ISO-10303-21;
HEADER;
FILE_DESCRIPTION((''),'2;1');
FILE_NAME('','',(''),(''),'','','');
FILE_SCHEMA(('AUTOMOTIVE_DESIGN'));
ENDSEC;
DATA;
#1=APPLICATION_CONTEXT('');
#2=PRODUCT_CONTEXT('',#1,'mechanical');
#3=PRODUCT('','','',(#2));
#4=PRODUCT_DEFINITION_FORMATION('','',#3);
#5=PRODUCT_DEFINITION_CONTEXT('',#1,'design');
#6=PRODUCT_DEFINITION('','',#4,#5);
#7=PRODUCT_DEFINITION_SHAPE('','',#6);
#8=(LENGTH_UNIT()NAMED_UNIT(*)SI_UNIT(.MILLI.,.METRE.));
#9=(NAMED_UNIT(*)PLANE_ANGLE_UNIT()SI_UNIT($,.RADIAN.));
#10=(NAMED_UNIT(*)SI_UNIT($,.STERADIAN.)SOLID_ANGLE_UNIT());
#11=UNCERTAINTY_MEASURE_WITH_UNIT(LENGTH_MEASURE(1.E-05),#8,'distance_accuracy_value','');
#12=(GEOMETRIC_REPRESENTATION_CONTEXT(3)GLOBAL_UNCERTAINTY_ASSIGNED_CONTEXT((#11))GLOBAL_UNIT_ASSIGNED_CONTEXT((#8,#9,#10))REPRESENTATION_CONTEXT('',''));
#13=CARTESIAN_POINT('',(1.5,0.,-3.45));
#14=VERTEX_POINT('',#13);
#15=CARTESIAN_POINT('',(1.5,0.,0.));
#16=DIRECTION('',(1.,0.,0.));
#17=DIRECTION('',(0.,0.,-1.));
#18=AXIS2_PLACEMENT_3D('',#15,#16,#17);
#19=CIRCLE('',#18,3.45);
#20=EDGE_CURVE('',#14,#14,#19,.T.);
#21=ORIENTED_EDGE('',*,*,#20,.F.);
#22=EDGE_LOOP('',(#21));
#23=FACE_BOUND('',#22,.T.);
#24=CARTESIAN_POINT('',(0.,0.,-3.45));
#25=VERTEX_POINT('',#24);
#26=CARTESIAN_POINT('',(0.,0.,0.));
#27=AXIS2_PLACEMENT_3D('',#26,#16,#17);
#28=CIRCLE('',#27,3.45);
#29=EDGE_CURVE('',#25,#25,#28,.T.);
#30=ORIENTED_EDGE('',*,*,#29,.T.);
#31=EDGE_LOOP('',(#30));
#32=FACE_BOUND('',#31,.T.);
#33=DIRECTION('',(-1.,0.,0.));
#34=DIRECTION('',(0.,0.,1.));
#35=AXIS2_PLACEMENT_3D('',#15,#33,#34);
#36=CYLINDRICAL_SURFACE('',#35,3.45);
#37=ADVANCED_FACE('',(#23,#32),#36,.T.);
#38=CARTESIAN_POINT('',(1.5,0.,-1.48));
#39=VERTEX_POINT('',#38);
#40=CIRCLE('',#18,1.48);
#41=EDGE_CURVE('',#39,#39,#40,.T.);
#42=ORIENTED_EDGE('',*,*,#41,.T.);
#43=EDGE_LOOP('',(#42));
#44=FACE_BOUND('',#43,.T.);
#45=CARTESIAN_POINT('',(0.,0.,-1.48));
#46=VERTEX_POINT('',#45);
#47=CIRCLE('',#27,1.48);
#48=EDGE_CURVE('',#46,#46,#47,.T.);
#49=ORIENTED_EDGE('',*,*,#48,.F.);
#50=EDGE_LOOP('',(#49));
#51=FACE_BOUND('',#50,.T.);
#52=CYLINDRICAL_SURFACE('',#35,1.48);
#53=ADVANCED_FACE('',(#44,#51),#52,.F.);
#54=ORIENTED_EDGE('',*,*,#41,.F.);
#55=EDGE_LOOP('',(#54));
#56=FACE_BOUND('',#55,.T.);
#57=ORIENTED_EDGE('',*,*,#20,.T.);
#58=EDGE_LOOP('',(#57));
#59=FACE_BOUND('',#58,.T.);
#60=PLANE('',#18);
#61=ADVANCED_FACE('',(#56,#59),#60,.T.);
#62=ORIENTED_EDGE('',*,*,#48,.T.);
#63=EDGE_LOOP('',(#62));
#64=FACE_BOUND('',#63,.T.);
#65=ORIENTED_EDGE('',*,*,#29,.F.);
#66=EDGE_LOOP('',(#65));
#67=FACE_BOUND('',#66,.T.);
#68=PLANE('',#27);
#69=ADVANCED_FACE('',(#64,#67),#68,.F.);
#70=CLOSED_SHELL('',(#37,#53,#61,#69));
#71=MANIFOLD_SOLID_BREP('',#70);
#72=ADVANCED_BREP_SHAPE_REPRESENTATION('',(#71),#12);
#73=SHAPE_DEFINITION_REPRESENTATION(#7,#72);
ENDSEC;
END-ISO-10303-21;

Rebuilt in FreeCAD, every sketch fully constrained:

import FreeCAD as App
import Part
import Sketcher
from FreeCAD import Vector

doc = App.newDocument("Part")
params = doc.addObject("Spreadsheet::Sheet", "Params")
for row, (alias, value) in enumerate([
    ("sketch1_diameter", "6.9 mm"),
    ("sketch1_diameter2", "2.96 mm"),
    ("pad1_length", "1.5 mm"),
], start=1):
    params.set(f"A{row}", alias)
    params.set(f"B{row}", "=" + value)
    params.setAlias(f"B{row}", alias)

body = doc.addObject("PartDesign::Body", "Body")

sketch1 = body.newObject("Sketcher::SketchObject", "Sketch")
sketch1.AttachmentSupport = (doc.getObject("YZ_Plane"), [""])
sketch1.MapMode = "FlatFace"
sketch1.addGeometry(Part.Circle(Vector(0, 0, 0), Vector(0, 0, 1), 3.5), False)
sketch1.addGeometry(Part.Circle(Vector(0, 0, 0), Vector(0, 0, 1), 1.5), False)
sketch1.addConstraint(Sketcher.Constraint("Coincident", 0, 3, -1, 1))
sketch1.addConstraint(Sketcher.Constraint("Coincident", 1, 3, -1, 1))
sketch1.addConstraint(Sketcher.Constraint("Diameter", 0, 6.9))
sketch1.addConstraint(Sketcher.Constraint("Diameter", 1, 2.96))
sketch1.setExpression("Constraints[2]", "Params.sketch1_diameter")
sketch1.setExpression("Constraints[3]", "Params.sketch1_diameter2")
pad1 = body.newObject("PartDesign::Pad", "Pad")
pad1.Profile = sketch1
pad1.setExpression("Length", "Params.pad1_length")

doc.recompute()
